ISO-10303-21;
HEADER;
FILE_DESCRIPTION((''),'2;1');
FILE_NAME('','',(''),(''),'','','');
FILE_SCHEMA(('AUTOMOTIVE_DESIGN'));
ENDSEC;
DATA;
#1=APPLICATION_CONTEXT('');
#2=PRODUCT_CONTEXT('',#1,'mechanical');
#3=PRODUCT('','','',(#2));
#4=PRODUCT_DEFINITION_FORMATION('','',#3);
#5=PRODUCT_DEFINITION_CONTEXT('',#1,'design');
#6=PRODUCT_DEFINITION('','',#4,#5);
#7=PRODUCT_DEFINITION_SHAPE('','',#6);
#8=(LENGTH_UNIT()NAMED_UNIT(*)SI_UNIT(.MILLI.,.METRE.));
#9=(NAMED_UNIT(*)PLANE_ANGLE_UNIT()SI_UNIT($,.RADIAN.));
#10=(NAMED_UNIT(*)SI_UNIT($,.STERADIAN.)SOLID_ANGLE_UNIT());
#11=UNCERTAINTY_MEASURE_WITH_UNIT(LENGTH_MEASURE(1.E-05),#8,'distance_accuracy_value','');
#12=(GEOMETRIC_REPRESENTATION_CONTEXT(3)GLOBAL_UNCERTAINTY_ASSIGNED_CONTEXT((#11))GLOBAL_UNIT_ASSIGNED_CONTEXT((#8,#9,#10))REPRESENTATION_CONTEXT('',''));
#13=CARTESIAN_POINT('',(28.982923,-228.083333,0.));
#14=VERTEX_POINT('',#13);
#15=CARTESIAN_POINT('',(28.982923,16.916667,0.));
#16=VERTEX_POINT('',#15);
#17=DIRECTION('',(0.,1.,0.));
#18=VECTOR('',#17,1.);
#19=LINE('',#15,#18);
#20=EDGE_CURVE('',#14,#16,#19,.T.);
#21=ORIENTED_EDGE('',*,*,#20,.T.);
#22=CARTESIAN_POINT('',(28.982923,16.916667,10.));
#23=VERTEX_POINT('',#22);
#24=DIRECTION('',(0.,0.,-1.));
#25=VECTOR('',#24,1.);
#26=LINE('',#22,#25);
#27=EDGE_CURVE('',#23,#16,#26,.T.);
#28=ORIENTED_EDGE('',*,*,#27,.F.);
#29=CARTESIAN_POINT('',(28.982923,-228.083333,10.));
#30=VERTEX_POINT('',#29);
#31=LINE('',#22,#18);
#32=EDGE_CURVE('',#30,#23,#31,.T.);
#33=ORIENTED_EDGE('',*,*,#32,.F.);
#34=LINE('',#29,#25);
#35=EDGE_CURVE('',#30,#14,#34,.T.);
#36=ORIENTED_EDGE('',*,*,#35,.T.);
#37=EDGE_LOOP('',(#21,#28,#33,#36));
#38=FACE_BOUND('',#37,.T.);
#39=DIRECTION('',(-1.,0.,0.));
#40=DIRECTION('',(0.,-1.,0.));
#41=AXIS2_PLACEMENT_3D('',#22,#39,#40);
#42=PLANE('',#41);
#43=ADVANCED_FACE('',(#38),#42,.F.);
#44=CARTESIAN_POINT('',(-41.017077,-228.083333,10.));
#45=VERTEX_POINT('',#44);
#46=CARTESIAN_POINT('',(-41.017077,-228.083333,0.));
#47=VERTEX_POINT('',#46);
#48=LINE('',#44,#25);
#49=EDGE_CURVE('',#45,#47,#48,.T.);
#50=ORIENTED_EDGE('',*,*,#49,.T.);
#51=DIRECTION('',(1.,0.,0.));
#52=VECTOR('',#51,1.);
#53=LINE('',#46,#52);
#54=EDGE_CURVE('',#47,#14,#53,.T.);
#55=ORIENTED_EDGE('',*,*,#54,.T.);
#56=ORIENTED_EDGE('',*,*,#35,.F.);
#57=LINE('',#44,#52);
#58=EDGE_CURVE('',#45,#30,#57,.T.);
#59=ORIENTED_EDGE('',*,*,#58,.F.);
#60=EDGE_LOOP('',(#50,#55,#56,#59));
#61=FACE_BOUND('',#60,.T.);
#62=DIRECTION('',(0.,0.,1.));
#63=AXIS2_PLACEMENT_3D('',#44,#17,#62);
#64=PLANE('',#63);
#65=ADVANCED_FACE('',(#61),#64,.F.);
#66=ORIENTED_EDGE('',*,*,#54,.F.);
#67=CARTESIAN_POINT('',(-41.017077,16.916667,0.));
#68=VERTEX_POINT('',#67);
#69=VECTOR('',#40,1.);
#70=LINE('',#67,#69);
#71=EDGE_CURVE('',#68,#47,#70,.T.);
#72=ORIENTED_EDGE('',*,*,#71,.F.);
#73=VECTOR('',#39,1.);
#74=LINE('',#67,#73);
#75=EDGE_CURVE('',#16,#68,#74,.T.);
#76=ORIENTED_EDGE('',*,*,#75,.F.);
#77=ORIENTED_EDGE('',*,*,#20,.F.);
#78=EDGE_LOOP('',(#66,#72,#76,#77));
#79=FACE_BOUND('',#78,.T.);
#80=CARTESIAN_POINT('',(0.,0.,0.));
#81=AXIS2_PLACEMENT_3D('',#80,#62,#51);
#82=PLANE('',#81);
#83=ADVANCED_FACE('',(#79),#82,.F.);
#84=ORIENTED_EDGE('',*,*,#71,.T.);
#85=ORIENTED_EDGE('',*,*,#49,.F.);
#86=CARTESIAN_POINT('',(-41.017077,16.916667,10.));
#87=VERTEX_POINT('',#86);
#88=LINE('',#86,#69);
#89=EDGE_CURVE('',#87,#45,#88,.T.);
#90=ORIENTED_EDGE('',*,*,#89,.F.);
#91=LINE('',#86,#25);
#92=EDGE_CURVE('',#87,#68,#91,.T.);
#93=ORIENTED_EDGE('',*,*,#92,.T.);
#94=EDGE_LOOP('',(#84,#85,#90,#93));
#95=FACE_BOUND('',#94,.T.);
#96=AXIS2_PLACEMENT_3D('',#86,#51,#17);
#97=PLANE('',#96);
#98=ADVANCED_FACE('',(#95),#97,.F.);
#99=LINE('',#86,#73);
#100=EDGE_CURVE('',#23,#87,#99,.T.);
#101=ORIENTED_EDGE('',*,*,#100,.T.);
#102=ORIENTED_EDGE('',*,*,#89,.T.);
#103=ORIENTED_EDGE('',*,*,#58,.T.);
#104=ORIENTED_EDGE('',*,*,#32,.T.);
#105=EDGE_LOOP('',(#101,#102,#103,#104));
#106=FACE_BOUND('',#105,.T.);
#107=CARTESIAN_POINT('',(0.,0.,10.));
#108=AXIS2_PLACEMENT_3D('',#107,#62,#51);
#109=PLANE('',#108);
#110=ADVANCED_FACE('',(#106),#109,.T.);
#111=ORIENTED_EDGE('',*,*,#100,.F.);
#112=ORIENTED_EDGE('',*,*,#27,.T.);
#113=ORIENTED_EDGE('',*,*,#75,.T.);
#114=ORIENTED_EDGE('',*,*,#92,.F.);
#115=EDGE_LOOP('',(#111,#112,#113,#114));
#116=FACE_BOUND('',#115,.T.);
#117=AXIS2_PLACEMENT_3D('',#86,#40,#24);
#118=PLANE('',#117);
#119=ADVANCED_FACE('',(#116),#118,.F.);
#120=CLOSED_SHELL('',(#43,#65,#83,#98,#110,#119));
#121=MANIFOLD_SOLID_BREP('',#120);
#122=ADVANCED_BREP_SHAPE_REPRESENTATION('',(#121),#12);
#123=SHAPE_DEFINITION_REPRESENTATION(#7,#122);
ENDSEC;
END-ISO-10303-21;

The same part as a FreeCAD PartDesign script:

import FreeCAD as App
import Part
import Sketcher

doc = App.newDocument("Part")
body = doc.addObject("PartDesign::Body", "Body")

sketch1 = doc.addObject("Sketcher::SketchObject", "Sketch")
body.addObject(sketch1)
sketch1.AttachmentSupport = (doc.XY_Plane, [""])
sketch1.MapMode = "FlatFace"
sketch1.addGeometry([
    Part.LineSegment(App.Vector(-41, 17, 0), App.Vector(-41, -228, 0)),
    Part.LineSegment(App.Vector(-41, -228, 0), App.Vector(29, -228, 0)),
    Part.LineSegment(App.Vector(29, -228, 0), App.Vector(29, 17, 0)),
    Part.LineSegment(App.Vector(29, 17, 0), App.Vector(-41, 17, 0)),
], False)
sketch1.addConstraint([
    Sketcher.Constraint("Coincident", 0, 2, 1, 1),
    Sketcher.Constraint("Coincident", 1, 2, 2, 1),
    Sketcher.Constraint("Coincident", 2, 2, 3, 1),
    Sketcher.Constraint("Coincident", 3, 2, 0, 1),
    Sketcher.Constraint("Vertical", 0),
    Sketcher.Constraint("Horizontal", 1),
    Sketcher.Constraint("Vertical", 2),
    Sketcher.Constraint("Horizontal", 3),
    Sketcher.Constraint("DistanceX", 1, 1, 1, 2, 70.0),
    Sketcher.Constraint("DistanceY", 0, 2, 0, 1, 245.0),
    Sketcher.Constraint("DistanceX", 0, 2, -1, 1, 41.017077),
    Sketcher.Constraint("DistanceY", 0, 2, -1, 1, 228.083333),
])
pad1 = doc.addObject("PartDesign::Pad", "Pad")
body.addObject(pad1)
pad1.Profile = sketch1
pad1.Length = 10

doc.recompute()
